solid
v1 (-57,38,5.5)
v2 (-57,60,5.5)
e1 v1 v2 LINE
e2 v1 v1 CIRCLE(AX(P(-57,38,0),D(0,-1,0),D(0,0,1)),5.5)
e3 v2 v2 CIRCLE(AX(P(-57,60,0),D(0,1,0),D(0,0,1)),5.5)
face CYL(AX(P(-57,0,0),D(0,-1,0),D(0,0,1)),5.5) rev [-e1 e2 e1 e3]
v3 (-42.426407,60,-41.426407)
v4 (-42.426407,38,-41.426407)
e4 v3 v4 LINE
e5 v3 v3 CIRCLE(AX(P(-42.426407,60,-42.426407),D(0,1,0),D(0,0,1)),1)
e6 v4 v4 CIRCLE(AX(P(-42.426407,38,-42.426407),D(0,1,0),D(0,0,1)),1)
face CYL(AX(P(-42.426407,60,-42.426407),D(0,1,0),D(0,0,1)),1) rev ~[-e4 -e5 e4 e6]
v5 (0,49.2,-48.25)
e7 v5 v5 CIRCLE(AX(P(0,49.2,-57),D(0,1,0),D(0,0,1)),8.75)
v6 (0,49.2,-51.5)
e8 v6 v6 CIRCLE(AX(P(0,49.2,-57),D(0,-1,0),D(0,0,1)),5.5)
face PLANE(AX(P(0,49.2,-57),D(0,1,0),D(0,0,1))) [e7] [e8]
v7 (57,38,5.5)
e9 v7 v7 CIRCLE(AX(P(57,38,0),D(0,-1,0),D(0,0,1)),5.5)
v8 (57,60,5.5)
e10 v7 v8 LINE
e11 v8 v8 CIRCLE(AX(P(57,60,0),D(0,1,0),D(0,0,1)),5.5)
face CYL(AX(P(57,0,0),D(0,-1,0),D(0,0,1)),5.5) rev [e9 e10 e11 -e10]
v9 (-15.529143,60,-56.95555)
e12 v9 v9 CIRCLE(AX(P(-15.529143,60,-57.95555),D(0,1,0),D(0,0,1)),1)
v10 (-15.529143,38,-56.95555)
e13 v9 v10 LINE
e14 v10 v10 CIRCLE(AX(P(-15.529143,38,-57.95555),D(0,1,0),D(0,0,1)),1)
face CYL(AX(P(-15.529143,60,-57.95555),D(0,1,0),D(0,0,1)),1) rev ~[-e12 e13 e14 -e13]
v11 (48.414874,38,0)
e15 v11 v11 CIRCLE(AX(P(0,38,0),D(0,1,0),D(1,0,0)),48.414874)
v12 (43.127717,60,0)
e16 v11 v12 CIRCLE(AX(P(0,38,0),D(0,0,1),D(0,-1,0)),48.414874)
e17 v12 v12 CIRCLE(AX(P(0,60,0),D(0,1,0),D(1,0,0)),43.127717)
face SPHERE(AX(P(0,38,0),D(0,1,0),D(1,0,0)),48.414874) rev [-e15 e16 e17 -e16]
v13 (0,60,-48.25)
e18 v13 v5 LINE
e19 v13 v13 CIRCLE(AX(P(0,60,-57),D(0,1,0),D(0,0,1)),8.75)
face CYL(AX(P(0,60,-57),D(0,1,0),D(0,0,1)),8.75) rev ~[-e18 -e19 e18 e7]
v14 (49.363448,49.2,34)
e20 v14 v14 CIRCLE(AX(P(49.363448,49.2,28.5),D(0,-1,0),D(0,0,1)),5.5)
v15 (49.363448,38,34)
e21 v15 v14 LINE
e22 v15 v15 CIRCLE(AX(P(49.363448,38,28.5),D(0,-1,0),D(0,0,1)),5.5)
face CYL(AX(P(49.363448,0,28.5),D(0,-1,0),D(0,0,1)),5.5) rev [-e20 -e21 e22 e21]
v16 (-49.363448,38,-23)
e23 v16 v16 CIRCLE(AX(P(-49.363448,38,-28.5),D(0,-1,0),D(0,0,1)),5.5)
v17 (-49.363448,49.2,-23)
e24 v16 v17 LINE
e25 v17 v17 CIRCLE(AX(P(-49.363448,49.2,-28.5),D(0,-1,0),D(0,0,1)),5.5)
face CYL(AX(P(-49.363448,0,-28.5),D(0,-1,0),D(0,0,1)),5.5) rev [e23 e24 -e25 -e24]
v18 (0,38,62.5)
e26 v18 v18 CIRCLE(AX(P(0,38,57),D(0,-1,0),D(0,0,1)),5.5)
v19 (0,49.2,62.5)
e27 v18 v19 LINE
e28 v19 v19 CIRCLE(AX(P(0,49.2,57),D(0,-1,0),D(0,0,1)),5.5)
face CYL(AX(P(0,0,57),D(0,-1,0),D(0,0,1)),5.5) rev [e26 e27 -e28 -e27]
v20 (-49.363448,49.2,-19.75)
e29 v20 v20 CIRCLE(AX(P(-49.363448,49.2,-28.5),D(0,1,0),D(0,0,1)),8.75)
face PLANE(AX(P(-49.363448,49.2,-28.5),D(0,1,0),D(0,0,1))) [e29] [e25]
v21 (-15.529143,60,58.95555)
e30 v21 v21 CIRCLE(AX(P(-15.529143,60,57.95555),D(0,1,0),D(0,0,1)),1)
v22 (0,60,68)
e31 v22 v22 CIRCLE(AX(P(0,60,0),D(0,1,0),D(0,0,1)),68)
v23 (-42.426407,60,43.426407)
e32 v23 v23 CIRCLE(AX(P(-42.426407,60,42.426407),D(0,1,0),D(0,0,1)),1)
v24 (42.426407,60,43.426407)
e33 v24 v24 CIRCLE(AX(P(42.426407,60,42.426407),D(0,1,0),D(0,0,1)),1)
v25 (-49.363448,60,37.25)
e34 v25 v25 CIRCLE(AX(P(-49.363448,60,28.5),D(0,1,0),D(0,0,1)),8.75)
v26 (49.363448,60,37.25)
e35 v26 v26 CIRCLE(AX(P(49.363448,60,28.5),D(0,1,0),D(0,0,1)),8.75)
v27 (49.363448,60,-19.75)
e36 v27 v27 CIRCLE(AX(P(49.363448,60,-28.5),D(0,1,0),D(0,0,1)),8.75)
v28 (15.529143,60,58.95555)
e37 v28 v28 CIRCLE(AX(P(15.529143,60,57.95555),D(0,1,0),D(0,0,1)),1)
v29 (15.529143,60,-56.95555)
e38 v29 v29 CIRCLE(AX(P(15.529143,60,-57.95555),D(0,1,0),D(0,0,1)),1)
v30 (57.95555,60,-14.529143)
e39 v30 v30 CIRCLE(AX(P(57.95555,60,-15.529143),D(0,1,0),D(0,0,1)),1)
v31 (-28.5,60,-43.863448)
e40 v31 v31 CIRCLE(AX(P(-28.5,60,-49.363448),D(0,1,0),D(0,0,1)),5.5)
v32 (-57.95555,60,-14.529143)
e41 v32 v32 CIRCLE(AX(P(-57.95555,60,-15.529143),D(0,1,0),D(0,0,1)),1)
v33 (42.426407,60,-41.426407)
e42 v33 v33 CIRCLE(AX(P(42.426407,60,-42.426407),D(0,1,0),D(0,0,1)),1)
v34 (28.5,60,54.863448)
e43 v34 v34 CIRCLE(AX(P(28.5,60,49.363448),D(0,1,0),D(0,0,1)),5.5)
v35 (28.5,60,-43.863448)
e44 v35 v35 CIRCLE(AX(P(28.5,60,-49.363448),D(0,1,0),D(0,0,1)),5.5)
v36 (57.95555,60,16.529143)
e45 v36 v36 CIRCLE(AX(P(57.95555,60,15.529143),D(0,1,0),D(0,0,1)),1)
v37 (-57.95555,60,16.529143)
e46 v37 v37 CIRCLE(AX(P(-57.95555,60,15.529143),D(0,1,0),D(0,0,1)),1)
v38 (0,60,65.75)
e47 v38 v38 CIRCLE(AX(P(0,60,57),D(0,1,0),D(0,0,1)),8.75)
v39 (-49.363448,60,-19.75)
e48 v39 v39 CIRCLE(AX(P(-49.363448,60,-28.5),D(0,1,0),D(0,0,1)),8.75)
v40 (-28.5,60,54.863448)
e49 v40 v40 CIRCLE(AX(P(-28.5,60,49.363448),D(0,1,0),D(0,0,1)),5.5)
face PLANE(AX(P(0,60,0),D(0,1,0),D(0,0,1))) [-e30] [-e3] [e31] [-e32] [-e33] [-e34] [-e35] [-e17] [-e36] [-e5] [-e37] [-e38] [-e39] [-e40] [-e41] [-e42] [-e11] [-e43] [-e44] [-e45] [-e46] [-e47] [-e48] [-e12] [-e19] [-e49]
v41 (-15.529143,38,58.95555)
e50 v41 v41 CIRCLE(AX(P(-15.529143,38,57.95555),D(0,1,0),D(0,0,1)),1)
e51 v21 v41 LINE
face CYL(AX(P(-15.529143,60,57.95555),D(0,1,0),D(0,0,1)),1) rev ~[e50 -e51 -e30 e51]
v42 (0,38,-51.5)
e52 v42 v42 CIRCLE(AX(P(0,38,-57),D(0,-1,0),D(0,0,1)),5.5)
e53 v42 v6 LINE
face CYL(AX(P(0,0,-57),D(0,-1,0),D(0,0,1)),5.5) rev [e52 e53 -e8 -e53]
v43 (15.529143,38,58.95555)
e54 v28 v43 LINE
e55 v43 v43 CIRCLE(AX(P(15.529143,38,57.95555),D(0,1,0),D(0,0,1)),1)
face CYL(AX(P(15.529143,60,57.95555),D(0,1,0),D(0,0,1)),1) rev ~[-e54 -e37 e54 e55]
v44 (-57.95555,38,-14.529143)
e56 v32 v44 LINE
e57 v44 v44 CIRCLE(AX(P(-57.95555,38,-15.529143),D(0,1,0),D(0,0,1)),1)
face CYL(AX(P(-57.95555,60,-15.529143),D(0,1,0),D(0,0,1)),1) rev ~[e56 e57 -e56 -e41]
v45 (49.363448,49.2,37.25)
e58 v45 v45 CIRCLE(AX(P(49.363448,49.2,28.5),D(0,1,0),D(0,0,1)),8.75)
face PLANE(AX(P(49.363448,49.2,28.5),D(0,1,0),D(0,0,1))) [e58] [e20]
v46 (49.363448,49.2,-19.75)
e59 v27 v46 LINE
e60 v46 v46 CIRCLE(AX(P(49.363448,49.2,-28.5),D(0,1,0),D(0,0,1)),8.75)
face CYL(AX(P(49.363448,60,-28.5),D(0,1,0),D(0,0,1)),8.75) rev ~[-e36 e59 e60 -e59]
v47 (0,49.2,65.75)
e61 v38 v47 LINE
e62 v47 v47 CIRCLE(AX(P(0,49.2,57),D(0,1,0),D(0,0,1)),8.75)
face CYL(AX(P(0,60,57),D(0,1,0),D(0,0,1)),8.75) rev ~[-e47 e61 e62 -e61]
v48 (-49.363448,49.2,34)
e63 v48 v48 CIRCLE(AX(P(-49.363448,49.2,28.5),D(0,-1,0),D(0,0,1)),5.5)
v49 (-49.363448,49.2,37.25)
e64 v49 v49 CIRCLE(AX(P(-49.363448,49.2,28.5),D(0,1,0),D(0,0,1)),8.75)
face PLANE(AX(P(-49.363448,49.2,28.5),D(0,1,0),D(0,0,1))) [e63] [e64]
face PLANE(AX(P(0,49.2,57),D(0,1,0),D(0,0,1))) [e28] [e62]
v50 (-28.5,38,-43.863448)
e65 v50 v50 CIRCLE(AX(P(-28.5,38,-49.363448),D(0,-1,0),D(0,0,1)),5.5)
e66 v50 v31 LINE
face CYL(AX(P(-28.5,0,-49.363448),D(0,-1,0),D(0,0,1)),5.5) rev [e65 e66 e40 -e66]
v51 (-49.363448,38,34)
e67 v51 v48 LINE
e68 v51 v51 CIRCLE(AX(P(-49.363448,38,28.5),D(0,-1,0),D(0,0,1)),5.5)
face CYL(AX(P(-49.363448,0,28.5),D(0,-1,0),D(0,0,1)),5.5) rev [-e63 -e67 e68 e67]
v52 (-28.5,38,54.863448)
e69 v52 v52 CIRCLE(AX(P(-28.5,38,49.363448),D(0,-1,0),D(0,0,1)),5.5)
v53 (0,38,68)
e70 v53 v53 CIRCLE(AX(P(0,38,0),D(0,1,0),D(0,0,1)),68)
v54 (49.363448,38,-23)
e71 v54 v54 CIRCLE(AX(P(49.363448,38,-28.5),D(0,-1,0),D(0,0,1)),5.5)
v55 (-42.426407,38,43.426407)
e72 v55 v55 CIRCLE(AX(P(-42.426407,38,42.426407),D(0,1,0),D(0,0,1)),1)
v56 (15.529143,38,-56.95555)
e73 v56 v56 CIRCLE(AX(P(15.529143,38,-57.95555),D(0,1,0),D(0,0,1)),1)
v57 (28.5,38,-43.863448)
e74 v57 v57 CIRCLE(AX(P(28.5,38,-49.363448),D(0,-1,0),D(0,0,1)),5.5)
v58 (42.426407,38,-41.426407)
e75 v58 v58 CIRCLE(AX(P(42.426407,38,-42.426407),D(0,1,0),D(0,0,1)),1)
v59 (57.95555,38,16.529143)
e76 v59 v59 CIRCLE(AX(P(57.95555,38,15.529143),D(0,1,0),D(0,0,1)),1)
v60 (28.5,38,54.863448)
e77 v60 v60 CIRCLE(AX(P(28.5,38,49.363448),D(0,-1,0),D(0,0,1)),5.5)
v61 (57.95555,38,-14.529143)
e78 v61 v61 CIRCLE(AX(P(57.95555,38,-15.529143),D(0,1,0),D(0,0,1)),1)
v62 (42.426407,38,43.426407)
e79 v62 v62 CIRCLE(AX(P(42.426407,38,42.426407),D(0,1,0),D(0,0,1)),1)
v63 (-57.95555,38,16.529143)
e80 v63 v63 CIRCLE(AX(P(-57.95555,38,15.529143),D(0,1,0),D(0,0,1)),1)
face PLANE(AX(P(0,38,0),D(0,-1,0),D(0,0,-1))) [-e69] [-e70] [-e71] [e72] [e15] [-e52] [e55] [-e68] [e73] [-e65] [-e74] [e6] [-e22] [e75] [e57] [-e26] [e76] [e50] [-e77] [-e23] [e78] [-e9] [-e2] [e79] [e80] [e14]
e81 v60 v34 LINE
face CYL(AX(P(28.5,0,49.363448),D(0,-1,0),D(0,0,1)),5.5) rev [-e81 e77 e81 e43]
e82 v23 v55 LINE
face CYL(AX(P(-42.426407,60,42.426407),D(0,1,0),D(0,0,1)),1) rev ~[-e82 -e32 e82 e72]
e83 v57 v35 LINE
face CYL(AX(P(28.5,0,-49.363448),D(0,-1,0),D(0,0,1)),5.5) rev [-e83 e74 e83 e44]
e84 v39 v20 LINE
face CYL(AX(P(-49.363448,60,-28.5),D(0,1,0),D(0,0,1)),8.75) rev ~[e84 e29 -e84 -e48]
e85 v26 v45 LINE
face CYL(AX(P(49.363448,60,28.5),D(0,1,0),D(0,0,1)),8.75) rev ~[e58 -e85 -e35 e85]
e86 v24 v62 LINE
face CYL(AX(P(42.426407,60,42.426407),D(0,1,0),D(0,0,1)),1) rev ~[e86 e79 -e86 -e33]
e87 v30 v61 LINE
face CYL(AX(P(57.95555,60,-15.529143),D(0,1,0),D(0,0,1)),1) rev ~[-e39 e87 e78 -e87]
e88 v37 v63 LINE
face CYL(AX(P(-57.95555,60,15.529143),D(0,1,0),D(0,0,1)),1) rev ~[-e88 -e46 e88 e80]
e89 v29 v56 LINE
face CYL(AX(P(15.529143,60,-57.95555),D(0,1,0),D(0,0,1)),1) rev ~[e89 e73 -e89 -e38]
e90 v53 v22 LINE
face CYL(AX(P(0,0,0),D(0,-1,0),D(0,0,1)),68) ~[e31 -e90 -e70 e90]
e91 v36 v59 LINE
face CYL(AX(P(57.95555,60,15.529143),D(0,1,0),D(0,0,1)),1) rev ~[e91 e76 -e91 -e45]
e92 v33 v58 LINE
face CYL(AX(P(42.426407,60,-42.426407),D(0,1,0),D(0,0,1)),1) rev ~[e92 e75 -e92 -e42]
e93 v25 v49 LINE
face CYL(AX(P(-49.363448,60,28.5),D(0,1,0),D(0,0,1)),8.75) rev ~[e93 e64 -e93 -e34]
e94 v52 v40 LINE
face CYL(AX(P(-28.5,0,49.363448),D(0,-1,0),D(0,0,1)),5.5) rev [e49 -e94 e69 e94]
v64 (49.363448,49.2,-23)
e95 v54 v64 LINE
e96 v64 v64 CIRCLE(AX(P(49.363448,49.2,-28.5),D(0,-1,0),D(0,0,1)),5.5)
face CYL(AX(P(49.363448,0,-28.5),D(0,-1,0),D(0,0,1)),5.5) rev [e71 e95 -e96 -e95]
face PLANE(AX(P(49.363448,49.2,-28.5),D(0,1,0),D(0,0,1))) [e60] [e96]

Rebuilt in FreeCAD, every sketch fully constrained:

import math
import FreeCAD as App
import Part
import Sketcher

doc = App.newDocument("Part")
body = doc.addObject("PartDesign::Body", "Body")

sketch1 = body.newObject("Sketcher::SketchObject", "Sketch")
sketch1.AttachmentSupport = (doc.getObject("XZ_Plane"), [""])
sketch1.MapMode = "FlatFace"
sketch1.addGeometry([
    Part.Circle(App.Vector(0, 0, 0), App.Vector(0, 0, 1), 68),
    Part.Circle(App.Vector(-49.363448, -28.5, 0), App.Vector(0, 0, 1), 5.5),
    Part.Circle(App.Vector(-28.5, -49.363448, 0), App.Vector(0, 0, 1), 5.5),
    Part.Circle(App.Vector(0, -57, 0), App.Vector(0, 0, 1), 5.5),
    Part.Circle(App.Vector(-57, 0, 0), App.Vector(0, 0, 1), 5.5),
    Part.Circle(App.Vector(-49.363448, 28.5, 0), App.Vector(0, 0, 1), 5.5),
    Part.Circle(App.Vector(-28.5, 49.363448, 0), App.Vector(0, 0, 1), 5.5),
    Part.Circle(App.Vector(28.5, -49.363448, 0), App.Vector(0, 0, 1), 5.5),
    Part.Circle(App.Vector(49.363448, -28.5, 0), App.Vector(0, 0, 1), 5.5),
    Part.Circle(App.Vector(57, 0, 0), App.Vector(0, 0, 1), 5.5),
    Part.Circle(App.Vector(0, 57, 0), App.Vector(0, 0, 1), 5.5),
    Part.Circle(App.Vector(28.5, 49.363448, 0), App.Vector(0, 0, 1), 5.5),
    Part.Circle(App.Vector(49.363448, 28.5, 0), App.Vector(0, 0, 1), 5.5),
], False)
sketch1.addConstraint([
    Sketcher.Constraint("Coincident", 0, 3, -1, 1),
    Sketcher.Constraint("Equal", 1, 2),
    Sketcher.Constraint("Equal", 2, 3),
    Sketcher.Constraint("Equal", 3, 4),
    Sketcher.Constraint("Equal", 4, 5),
    Sketcher.Constraint("Equal", 5, 6),
    Sketcher.Constraint("Equal", 6, 7),
    Sketcher.Constraint("Equal", 7, 8),
    Sketcher.Constraint("Equal", 8, 9),
    Sketcher.Constraint("Equal", 9, 10),
    Sketcher.Constraint("Equal", 10, 11),
    Sketcher.Constraint("Equal", 11, 12),
    Sketcher.Constraint("Symmetric", 6, 3, 7, 3, -1, 1),
    Sketcher.Constraint("Symmetric", 5, 3, 8, 3, -1, 1),
    Sketcher.Constraint("Symmetric", 4, 3, 9, 3, -1, 1),
    Sketcher.Constraint("Symmetric", 3, 3, 10, 3, -1, 1),
    Sketcher.Constraint("Symmetric", 2, 3, 11, 3, -1, 1),
    Sketcher.Constraint("Symmetric", 1, 3, 12, 3, -1, 1),
    Sketcher.Constraint("Symmetric", 2, 3, 7, 3, -2),
    Sketcher.Constraint("Symmetric", 1, 3, 8, 3, -2),
    Sketcher.Constraint("PointOnObject", 3, 3, -2),
    Sketcher.Constraint("PointOnObject", 4, 3, -1),
    Sketcher.Constraint("Diameter", 0, 136.0),
    Sketcher.Constraint("Diameter", 1, 11.0),
    Sketcher.Constraint("DistanceY", 3, 3, -1, 1, 57.0),
    Sketcher.Constraint("DistanceX", 4, 3, -1, 1, 57.0),
    Sketcher.Constraint("DistanceY", 1, 3, 5, 3, 57.0),
    Sketcher.Constraint("DistanceX", 2, 3, 7, 3, 57.0),
    Sketcher.Constraint("DistanceX", 1, 3, -1, 1, 49.363448),
    Sketcher.Constraint("DistanceY", 2, 3, -1, 1, 49.363448),
])
pad1 = body.newObject("PartDesign::Pad", "Pad")
pad1.Profile = sketch1
pad1.Length = 60
pad1.Reversed = True

sketch2 = body.newObject("Sketcher::SketchObject", "Sketch001")
sketch2.AttachmentSupport = (doc.getObject("XZ_Plane"), [""])
sketch2.MapMode = "FlatFace"
sketch2.AttachmentOffset = App.Placement(App.Vector(0, 0, -60), App.Rotation())
sketch2.addGeometry([
    Part.Circle(App.Vector(0, -57, 0), App.Vector(0, 0, 1), 8.75),
    Part.Circle(App.Vector(49.363448, -28.5, 0), App.Vector(0, 0, 1), 8.75),
    Part.Circle(App.Vector(49.363448, 28.5, 0), App.Vector(0, 0, 1), 8.75),
    Part.Circle(App.Vector(0, 57, 0), App.Vector(0, 0, 1), 8.75),
    Part.Circle(App.Vector(-49.363448, 28.5, 0), App.Vector(0, 0, 1), 8.75),
    Part.Circle(App.Vector(-49.363448, -28.5, 0), App.Vector(0, 0, 1), 8.75),
], False)
sketch2.addConstraint([
    Sketcher.Constraint("Equal", 0, 1),
    Sketcher.Constraint("Equal", 1, 2),
    Sketcher.Constraint("Equal", 2, 3),
    Sketcher.Constraint("Equal", 3, 4),
    Sketcher.Constraint("Equal", 4, 5),
    Sketcher.Constraint("Symmetric", 0, 3, 3, 3, -1, 1),
    Sketcher.Constraint("Symmetric", 1, 3, 4, 3, -1, 1),
    Sketcher.Constraint("Symmetric", 2, 3, 5, 3, -1, 1),
    Sketcher.Constraint("Symmetric", 2, 3, 4, 3, -2),
    Sketcher.Constraint("PointOnObject", 0, 3, -2),
    Sketcher.Constraint("Diameter", 0, 17.5),
    Sketcher.Constraint("DistanceY", 0, 3, -1, 1, 57.0),
    Sketcher.Constraint("DistanceY", 1, 3, 2, 3, 57.0),
    Sketcher.Constraint("DistanceX", -1, 1, 1, 3, 49.363448),
])
pocket1 = body.newObject("PartDesign::Pocket", "Pocket")
pocket1.Profile = sketch2
pocket1.Length = 10.8
pocket1.Reversed = True

sketch3 = body.newObject("Sketcher::SketchObject", "Sketch002")
sketch3.AttachmentSupport = (doc.getObject("XZ_Plane"), [""])
sketch3.MapMode = "FlatFace"
sketch3.addGeometry([
    Part.Circle(App.Vector(28.5, 49.363448, 0), App.Vector(0, 0, 1), 8.75),
    Part.Circle(App.Vector(57, 0, 0), App.Vector(0, 0, 1), 8.75),
    Part.Circle(App.Vector(28.5, -49.363448, 0), App.Vector(0, 0, 1), 8.75),
    Part.Circle(App.Vector(-28.5, -49.363448, 0), App.Vector(0, 0, 1), 8.75),
    Part.Circle(App.Vector(-57, 0, 0), App.Vector(0, 0, 1), 8.75),
    Part.Circle(App.Vector(-28.5, 49.363448, 0), App.Vector(0, 0, 1), 8.75),
], False)
sketch3.addConstraint([
    Sketcher.Constraint("Equal", 0, 1),
    Sketcher.Constraint("Equal", 1, 2),
    Sketcher.Constraint("Equal", 2, 3),
    Sketcher.Constraint("Equal", 3, 4),
    Sketcher.Constraint("Equal", 4, 5),
    Sketcher.Constraint("Symmetric", 0, 3, 3, 3, -1, 1),
    Sketcher.Constraint("Symmetric", 1, 3, 4, 3, -1, 1),
    Sketcher.Constraint("Symmetric", 2, 3, 5, 3, -1, 1),
    Sketcher.Constraint("Symmetric", 2, 3, 3, 3, -2),
    Sketcher.Constraint("PointOnObject", 1, 3, -1),
    Sketcher.Constraint("Diameter", 0, 17.5),
    Sketcher.Constraint("DistanceX", -1, 1, 1, 3, 57.0),
    Sketcher.Constraint("DistanceX", 3, 3, 2, 3, 57.0),
    Sketcher.Constraint("DistanceY", -1, 1, 0, 3, 49.363448),
])
pocket2 = body.newObject("PartDesign::Pocket", "Pocket001")
pocket2.Profile = sketch3
pocket2.Length = 10.8

sketch4 = body.newObject("Sketcher::SketchObject", "Sketch003")
sketch4.AttachmentSupport = (doc.getObject("XZ_Plane"), [""])
sketch4.MapMode = "FlatFace"
sketch4.addGeometry(Part.Circle(App.Vector(0, 0, 0), App.Vector(0, 0, 1), 68), False)
sketch4.addConstraint([
    Sketcher.Constraint("Coincident", 0, 3, -1, 1),
    Sketcher.Constraint("Diameter", 0, 136.0),
])
pocket3 = body.newObject("PartDesign::Pocket", "Pocket002")
pocket3.Profile = sketch4
pocket3.Length = 38

sketch5 = body.newObject("Sketcher::SketchObject", "Sketch004")
sketch5.AttachmentSupport = (doc.getObject("XY_Plane"), [""])
sketch5.MapMode = "FlatFace"
sketch5.addGeometry([
    Part.LineSegment(App.Vector(0, -10.414874, 0), App.Vector(0, 86.414874, 0)),
    Part.ArcOfCircle(Part.Circle(App.Vector(0, 38, 0), App.Vector(0, 0, 1), 48.414874), math.radians(-90), math.radians(90)),
], False)
sketch5.addConstraint([
    Sketcher.Constraint("Coincident", 0, 1, 1, 1),
    Sketcher.Constraint("Coincident", 1, 2, 0, 2),
    Sketcher.Constraint("Vertical", 0),
    Sketcher.Constraint("PointOnObject", 1, 3, -2),
    Sketcher.Constraint("PointOnObject", 0, 1, -2),
    Sketcher.Constraint("DistanceY", -1, 1, 1, 3, 38.0),
    Sketcher.Constraint("Radius", 1, 48.414874),
])
groove = body.newObject("PartDesign::Groove", "Groove")
groove.Profile = sketch5
groove.ReferenceAxis = (sketch5, ["V_Axis"])
groove.Angle = 360

sketch6 = body.newObject("Sketcher::SketchObject", "Sketch005")
sketch6.AttachmentSupport = (doc.getObject("XZ_Plane"), [""])
sketch6.MapMode = "FlatFace"
sketch6.AttachmentOffset = App.Placement(App.Vector(0, 0, -60), App.Rotation())
sketch6.addGeometry([
    Part.Circle(App.Vector(15.529143, -57.95555, 0), App.Vector(0, 0, 1), 1),
    Part.Circle(App.Vector(42.426407, -42.426407, 0), App.Vector(0, 0, 1), 1),
    Part.Circle(App.Vector(57.95555, -15.529143, 0), App.Vector(0, 0, 1), 1),
    Part.Circle(App.Vector(57.95555, 15.529143, 0), App.Vector(0, 0, 1), 1),
    Part.Circle(App.Vector(42.426407, 42.426407, 0), App.Vector(0, 0, 1), 1),
    Part.Circle(App.Vector(15.529143, 57.95555, 0), App.Vector(0, 0, 1), 1),
    Part.Circle(App.Vector(-15.529143, 57.95555, 0), App.Vector(0, 0, 1), 1),
    Part.Circle(App.Vector(-42.426407, 42.426407, 0), App.Vector(0, 0, 1), 1),
    Part.Circle(App.Vector(-57.95555, 15.529143, 0), App.Vector(0, 0, 1), 1),
    Part.Circle(App.Vector(-57.95555, -15.529143, 0), App.Vector(0, 0, 1), 1),
    Part.Circle(App.Vector(-42.426407, -42.426407, 0), App.Vector(0, 0, 1), 1),
    Part.Circle(App.Vector(-15.529143, -57.95555, 0), App.Vector(0, 0, 1), 1),
], False)
sketch6.addConstraint([
    Sketcher.Constraint("Equal", 0, 1),
    Sketcher.Constraint("Equal", 1, 2),
    Sketcher.Constraint("Equal", 2, 3),
    Sketcher.Constraint("Equal", 3, 4),
    Sketcher.Constraint("Equal", 4, 5),
    Sketcher.Constraint("Equal", 5, 6),
    Sketcher.Constraint("Equal", 6, 7),
    Sketcher.Constraint("Equal", 7, 8),
    Sketcher.Constraint("Equal", 8, 9),
    Sketcher.Constraint("Equal", 9, 10),
    Sketcher.Constraint("Equal", 10, 11),
    Sketcher.Constraint("Symmetric", 0, 3, 6, 3, -1, 1),
    Sketcher.Constraint("Symmetric", 1, 3, 7, 3, -1, 1),
    Sketcher.Constraint("Symmetric", 2, 3, 8, 3, -1, 1),
    Sketcher.Constraint("Symmetric", 3, 3, 9, 3, -1, 1),
    Sketcher.Constraint("Symmetric", 4, 3, 10, 3, -1, 1),
    Sketcher.Constraint("Symmetric", 5, 3, 11, 3, -1, 1),
    Sketcher.Constraint("Symmetric", 5, 3, 6, 3, -2),
    Sketcher.Constraint("Symmetric", 4, 3, 7, 3, -2),
    Sketcher.Constraint("Symmetric", 3, 3, 8, 3, -2),
    Sketcher.Constraint("Diameter", 0, 2.0),
    Sketcher.Constraint("DistanceY", 0, 3, 5, 3, 115.911099),
    Sketcher.Constraint("DistanceX", -1, 1, 2, 3, 57.95555),
    Sketcher.Constraint("DistanceY", 1, 3, 3, 3, 57.95555),
    Sketcher.Constraint("DistanceX", 6, 3, 4, 3, 57.95555),
    Sketcher.Constraint("DistanceX", -1, 1, 0, 3, 15.529143),
    Sketcher.Constraint("DistanceY", 1, 3, -1, 1, 42.426407),
])
pocket4 = body.newObject("PartDesign::Pocket", "Pocket003")
pocket4.Profile = sketch6
pocket4.Type = "ThroughAll"
pocket4.Reversed = True

doc.recompute()
